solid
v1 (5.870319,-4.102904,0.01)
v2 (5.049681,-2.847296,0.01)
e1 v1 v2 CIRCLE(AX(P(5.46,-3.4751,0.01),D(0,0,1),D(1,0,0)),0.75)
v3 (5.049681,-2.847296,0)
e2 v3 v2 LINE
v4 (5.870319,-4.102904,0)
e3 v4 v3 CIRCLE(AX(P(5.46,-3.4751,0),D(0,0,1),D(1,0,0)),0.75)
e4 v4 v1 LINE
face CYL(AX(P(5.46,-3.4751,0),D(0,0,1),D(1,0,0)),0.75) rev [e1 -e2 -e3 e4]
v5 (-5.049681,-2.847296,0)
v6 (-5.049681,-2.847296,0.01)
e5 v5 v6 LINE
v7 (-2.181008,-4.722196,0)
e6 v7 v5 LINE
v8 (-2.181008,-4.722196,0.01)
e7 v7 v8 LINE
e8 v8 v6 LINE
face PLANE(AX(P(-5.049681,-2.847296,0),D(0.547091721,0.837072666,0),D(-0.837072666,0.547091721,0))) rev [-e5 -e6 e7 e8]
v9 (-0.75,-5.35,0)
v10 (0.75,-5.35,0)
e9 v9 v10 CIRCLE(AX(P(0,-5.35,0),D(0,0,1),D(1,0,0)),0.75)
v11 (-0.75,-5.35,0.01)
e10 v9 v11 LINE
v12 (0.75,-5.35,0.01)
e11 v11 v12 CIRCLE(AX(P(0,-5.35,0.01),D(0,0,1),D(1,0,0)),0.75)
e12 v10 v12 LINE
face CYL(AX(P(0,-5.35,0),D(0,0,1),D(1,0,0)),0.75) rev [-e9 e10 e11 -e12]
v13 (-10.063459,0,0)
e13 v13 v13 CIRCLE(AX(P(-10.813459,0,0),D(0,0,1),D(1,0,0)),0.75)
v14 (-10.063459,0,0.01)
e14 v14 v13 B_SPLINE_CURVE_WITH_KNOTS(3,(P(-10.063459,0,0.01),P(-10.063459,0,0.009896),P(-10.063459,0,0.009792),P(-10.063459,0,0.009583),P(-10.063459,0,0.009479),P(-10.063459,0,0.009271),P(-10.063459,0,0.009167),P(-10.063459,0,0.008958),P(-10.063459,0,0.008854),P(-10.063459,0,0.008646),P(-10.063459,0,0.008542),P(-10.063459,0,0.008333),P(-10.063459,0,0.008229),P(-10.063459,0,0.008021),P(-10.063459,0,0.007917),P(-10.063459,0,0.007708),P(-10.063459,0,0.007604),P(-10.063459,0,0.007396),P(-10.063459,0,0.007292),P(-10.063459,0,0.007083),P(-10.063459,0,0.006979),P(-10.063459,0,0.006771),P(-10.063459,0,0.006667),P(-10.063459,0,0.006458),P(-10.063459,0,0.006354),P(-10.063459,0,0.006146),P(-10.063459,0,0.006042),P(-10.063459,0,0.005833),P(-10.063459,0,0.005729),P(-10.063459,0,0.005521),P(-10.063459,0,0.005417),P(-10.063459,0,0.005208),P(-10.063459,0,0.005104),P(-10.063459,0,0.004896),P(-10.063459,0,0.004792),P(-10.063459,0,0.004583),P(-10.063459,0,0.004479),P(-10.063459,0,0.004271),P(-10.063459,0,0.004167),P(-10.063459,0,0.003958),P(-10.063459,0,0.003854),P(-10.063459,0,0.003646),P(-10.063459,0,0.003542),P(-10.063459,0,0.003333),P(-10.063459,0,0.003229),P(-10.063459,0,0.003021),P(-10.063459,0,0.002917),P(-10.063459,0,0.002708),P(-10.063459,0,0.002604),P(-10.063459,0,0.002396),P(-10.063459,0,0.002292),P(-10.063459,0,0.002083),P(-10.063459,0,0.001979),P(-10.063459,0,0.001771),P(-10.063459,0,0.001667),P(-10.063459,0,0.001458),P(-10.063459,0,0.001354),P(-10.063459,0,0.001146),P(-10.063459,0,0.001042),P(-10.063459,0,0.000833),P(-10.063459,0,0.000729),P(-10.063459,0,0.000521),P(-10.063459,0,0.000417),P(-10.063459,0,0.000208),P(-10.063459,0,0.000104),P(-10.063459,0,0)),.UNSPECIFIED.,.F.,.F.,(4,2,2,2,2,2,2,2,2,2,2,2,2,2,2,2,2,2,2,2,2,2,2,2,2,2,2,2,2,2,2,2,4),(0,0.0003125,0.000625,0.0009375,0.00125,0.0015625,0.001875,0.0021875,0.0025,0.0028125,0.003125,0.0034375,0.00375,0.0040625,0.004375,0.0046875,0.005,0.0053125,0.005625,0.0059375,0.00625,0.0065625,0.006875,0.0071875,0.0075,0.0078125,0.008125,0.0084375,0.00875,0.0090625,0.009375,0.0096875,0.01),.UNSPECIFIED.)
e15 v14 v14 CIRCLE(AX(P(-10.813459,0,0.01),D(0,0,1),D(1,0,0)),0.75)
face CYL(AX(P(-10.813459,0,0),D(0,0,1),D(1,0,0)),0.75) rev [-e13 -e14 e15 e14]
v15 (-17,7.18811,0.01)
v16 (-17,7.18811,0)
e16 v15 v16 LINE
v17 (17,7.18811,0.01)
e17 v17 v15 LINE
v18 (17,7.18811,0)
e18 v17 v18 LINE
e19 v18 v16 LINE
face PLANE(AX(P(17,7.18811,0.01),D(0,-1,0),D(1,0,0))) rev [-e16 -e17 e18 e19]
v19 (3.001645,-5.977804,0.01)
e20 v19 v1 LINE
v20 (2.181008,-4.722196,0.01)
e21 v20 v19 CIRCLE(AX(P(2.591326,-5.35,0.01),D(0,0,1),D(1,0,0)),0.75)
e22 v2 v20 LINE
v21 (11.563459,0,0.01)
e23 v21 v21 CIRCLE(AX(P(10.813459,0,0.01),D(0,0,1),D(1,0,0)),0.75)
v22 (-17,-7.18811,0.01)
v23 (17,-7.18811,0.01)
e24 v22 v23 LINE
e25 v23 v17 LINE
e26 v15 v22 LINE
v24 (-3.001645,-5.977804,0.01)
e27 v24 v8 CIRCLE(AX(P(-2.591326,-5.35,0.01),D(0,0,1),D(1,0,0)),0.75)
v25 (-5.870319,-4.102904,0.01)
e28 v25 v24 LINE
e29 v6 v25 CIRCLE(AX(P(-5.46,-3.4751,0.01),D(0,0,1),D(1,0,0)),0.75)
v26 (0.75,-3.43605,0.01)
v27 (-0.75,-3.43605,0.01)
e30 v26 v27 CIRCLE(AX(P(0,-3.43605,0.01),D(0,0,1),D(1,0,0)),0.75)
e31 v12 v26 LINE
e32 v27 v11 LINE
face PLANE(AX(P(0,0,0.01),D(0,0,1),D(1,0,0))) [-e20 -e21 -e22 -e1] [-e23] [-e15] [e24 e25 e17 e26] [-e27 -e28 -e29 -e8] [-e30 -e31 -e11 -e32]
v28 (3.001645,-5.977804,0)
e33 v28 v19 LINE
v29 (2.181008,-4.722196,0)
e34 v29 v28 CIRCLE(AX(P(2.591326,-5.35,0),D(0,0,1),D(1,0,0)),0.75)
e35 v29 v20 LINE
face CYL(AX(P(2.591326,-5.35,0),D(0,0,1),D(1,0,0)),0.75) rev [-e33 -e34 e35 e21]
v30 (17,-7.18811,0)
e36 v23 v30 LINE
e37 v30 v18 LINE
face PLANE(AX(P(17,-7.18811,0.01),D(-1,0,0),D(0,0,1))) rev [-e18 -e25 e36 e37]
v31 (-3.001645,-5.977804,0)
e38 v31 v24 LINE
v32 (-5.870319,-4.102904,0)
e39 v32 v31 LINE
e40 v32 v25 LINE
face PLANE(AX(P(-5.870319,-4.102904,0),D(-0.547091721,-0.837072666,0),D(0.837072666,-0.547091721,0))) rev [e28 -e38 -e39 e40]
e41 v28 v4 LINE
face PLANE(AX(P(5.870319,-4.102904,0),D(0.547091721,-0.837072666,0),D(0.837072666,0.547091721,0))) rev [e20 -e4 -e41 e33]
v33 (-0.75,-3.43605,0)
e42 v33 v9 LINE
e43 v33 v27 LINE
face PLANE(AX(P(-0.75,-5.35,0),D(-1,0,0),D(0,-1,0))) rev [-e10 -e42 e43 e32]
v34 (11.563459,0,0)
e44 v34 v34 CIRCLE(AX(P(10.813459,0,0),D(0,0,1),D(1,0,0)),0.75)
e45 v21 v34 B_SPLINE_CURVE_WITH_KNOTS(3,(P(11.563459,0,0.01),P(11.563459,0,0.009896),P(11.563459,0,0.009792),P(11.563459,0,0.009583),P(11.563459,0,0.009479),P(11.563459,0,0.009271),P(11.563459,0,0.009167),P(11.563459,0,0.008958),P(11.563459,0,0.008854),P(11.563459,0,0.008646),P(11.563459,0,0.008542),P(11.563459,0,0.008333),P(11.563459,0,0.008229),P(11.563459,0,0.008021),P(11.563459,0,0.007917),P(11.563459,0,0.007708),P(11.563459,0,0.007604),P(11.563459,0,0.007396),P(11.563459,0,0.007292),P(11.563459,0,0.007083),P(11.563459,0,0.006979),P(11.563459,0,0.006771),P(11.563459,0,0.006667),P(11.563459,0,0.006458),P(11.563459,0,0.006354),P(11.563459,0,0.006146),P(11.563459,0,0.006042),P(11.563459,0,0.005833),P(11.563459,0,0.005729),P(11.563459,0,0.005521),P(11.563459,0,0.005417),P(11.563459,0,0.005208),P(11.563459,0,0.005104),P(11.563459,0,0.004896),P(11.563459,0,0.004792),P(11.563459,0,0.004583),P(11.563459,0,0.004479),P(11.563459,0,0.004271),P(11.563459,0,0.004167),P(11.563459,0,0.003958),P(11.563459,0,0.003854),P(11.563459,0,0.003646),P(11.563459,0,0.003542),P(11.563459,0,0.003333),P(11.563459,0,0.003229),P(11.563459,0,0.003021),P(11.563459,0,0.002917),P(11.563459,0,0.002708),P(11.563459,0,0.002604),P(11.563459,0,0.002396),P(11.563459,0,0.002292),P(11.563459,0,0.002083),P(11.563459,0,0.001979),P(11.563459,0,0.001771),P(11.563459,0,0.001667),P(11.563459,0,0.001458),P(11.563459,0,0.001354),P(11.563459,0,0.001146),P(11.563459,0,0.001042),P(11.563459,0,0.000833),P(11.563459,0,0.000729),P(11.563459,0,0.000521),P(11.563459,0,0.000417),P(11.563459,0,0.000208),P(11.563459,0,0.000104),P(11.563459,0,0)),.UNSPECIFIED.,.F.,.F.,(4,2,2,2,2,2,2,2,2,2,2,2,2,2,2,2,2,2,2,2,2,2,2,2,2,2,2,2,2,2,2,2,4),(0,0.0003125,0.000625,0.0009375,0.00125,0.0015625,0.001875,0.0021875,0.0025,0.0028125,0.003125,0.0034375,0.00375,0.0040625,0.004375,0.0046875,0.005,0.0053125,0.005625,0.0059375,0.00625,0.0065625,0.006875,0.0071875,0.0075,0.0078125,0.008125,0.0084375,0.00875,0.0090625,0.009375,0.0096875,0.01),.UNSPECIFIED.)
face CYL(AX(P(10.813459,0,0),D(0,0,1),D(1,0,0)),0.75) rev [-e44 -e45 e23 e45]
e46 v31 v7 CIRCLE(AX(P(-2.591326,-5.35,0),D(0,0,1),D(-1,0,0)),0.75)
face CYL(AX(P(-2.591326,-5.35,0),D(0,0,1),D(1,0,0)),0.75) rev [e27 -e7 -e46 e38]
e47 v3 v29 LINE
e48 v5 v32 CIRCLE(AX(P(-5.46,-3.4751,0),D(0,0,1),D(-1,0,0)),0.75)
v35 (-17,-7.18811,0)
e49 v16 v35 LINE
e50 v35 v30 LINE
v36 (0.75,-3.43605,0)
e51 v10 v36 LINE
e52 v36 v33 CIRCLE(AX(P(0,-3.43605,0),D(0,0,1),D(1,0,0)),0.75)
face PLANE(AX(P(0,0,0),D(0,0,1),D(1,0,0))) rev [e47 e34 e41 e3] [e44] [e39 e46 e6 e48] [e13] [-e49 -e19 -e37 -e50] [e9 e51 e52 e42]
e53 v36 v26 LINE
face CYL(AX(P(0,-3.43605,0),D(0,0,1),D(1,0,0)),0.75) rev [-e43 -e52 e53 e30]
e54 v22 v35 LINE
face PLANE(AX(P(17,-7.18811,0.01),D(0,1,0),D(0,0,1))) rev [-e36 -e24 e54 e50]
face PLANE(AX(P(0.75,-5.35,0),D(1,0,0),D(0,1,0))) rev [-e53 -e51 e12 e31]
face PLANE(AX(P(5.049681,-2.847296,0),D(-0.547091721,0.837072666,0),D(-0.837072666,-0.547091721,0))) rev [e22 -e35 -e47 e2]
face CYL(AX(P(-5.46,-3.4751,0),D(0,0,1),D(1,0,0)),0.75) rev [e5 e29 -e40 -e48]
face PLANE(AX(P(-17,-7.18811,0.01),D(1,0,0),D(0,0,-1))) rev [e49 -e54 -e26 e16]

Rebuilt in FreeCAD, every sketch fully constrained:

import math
import FreeCAD as App
import Part
import Sketcher
from FreeCAD import Vector
Q = App.Units.Quantity


def add_polygon(sketch, points):
    """Adds a closed chain of lines whose ends are joined by coincident constraints."""
    first, n = sketch.GeometryCount, len(points)
    for a, b in zip(points, points[1:] + points[:1]):
        sketch.addGeometry(Part.LineSegment(App.Vector(*a, 0), App.Vector(*b, 0)), False)
    for i in range(n):
        sketch.addConstraint(Sketcher.Constraint("Coincident", first + i, 2, first + (i + 1) % n, 1))

doc = App.newDocument("Part")
body = doc.addObject("PartDesign::Body", "Body")

# Sketch on XY plane
sketch1 = body.newObject("Sketcher::SketchObject", "Sketch")
sketch1.AttachmentSupport = (doc.getObject("XY_Plane"), [""])
sketch1.MapMode = "FlatFace"
add_polygon(sketch1, [(-17, 7.18811), (-17, -7.18811), (17, -7.18811), (17, 7.18811)])  # lines 0-3
sketch1.addConstraint(Sketcher.Constraint("Vertical", 0))
sketch1.addConstraint(Sketcher.Constraint("Horizontal", 1))
sketch1.addConstraint(Sketcher.Constraint("Vertical", 2))
sketch1.addConstraint(Sketcher.Constraint("Horizontal", 3))
sketch1.addConstraint(Sketcher.Constraint("Symmetric", 0, 2, 2, 2, -1, 1))
sketch1.addConstraint(Sketcher.Constraint("DistanceX", 1, 1, 1, 2, Q("34 mm")))
sketch1.addConstraint(Sketcher.Constraint("DistanceY", 0, 2, 0, 1, Q("14.376221 mm")))
pad1 = body.newObject("PartDesign::Pad", "Pad")
pad1.Profile = sketch1
pad1.Length = 0.01

# Sketch on XY plane
sketch2 = body.newObject("Sketcher::SketchObject", "Sketch001")
sketch2.AttachmentSupport = (doc.getObject("XY_Plane"), [""])
sketch2.MapMode = "FlatFace"
sketch2.AttachmentOffset = App.Placement(Vector(0, 0, 0.01), App.Rotation())
sketch2.addGeometry(Part.Circle(Vector(10.813459, 0, 0), Vector(0, 0, 1), 0.75), False)
sketch2.addGeometry(Part.Circle(Vector(-10.813459, 0, 0), Vector(0, 0, 1), 0.75), False)
sketch2.addGeometry(Part.LineSegment(Vector(3.001645, -5.977805, 0), Vector(5.870319, -4.102905, 0)), False)
sketch2.addGeometry(Part.ArcOfCircle(Part.Circle(Vector(5.46, -3.4751, 0), Vector(0, 0, 1), 0.75), math.radians(-56.832279), math.radians(123.167721)), False)
sketch2.addGeometry(Part.LineSegment(Vector(5.049681, -2.847295, 0), Vector(2.181008, -4.722195, 0)), False)
sketch2.addGeometry(Part.ArcOfCircle(Part.Circle(Vector(2.591326, -5.35, 0), Vector(0, 0, 1), 0.75), math.radians(123.167721), math.radians(303.167721)), False)
sketch2.addGeometry(Part.LineSegment(Vector(-5.870319, -4.102905, 0), Vector(-3.001645, -5.977805, 0)), False)
sketch2.addGeometry(Part.ArcOfCircle(Part.Circle(Vector(-2.591326, -5.35, 0), Vector(0, 0, 1), 0.75), math.radians(-123.167721), math.radians(56.832279)), False)
sketch2.addGeometry(Part.LineSegment(Vector(-2.181008, -4.722195, 0), Vector(-5.049681, -2.847295, 0)), False)
sketch2.addGeometry(Part.ArcOfCircle(Part.Circle(Vector(-5.46, -3.4751, 0), Vector(0, 0, 1), 0.75), math.radians(56.832279), math.radians(236.832279)), False)
sketch2.addGeometry(Part.LineSegment(Vector(-0.75, -3.43605, 0), Vector(-0.75, -5.35, 0)), False)
sketch2.addGeometry(Part.ArcOfCircle(Part.Circle(Vector(0, -5.35, 0), Vector(0, 0, 1), 0.75), math.radians(180), math.radians(360)), False)
sketch2.addGeometry(Part.LineSegment(Vector(0.75, -5.35, 0), Vector(0.75, -3.43605, 0)), False)
sketch2.addGeometry(Part.ArcOfCircle(Part.Circle(Vector(0, -3.43605, 0), Vector(0, 0, 1), 0.75), math.radians(0), math.radians(180)), False)
sketch2.addConstraint(Sketcher.Constraint("Tangent", 2, 2, 3, 1))
sketch2.addConstraint(Sketcher.Constraint("Tangent", 3, 2, 4, 1))
sketch2.addConstraint(Sketcher.Constraint("Tangent", 4, 2, 5, 1))
sketch2.addConstraint(Sketcher.Constraint("Tangent", 5, 2, 2, 1))
sketch2.addConstraint(Sketcher.Constraint("Tangent", 6, 2, 7, 1))
sketch2.addConstraint(Sketcher.Constraint("Tangent", 7, 2, 8, 1))
sketch2.addConstraint(Sketcher.Constraint("Tangent", 8, 2, 9, 1))
sketch2.addConstraint(Sketcher.Constraint("Tangent", 9, 2, 6, 1))
sketch2.addConstraint(Sketcher.Constraint("Tangent", 10, 2, 11, 1))
sketch2.addConstraint(Sketcher.Constraint("Tangent", 11, 2, 12, 1))
sketch2.addConstraint(Sketcher.Constraint("Tangent", 12, 2, 13, 1))
sketch2.addConstraint(Sketcher.Constraint("Tangent", 13, 2, 10, 1))
sketch2.addConstraint(Sketcher.Constraint("Vertical", 10))
sketch2.addConstraint(Sketcher.Constraint("Vertical", 12))
sketch2.addConstraint(Sketcher.Constraint("Equal", 0, 1))
sketch2.addConstraint(Sketcher.Constraint("Equal", 1, 3))
sketch2.addConstraint(Sketcher.Constraint("Equal", 3, 5))
sketch2.addConstraint(Sketcher.Constraint("Equal", 5, 7))
sketch2.addConstraint(Sketcher.Constraint("Equal", 7, 9))
sketch2.addConstraint(Sketcher.Constraint("Equal", 9, 11))
sketch2.addConstraint(Sketcher.Constraint("Symmetric", 0, 3, 1, 3, -1, 1))
sketch2.addConstraint(Sketcher.Constraint("Symmetric", 5, 3, 7, 3, -2))
sketch2.addConstraint(Sketcher.Constraint("Symmetric", 3, 3, 9, 3, -2))
sketch2.addConstraint(Sketcher.Constraint("PointOnObject", 0, 3, -1))
sketch2.addConstraint(Sketcher.Constraint("PointOnObject", 11, 3, -2))
sketch2.addConstraint(Sketcher.Constraint("Horizontal", 7, 3, 11, 3))
sketch2.addConstraint(Sketcher.Constraint("Diameter", 0, Q("1.5 mm")))
sketch2.addConstraint(Sketcher.Constraint("DistanceX", -1, 1, 3, 3, Q("5.46 mm")))
sketch2.addConstraint(Sketcher.Constraint("DistanceY", 5, 3, -1, 1, Q("5.35 mm")))
sketch2.addConstraint(Sketcher.Constraint("DistanceY", 10, 2, 10, 1, Q("1.91395 mm")))
sketch2.addConstraint(Sketcher.Constraint("DistanceY", 3, 3, -1, 1, Q("3.4751 mm")))
sketch2.addConstraint(Sketcher.Constraint("Distance", 2, Q("3.42703 mm")))
sketch2.addConstraint(Sketcher.Constraint("DistanceX", -1, 1, 0, 3, Q("10.813459 mm")))
pocket1 = body.newObject("PartDesign::Pocket", "Pocket")
pocket1.Profile = sketch2
pocket1.Type = "ThroughAll"
pocket1.Midplane = True

doc.recompute()
